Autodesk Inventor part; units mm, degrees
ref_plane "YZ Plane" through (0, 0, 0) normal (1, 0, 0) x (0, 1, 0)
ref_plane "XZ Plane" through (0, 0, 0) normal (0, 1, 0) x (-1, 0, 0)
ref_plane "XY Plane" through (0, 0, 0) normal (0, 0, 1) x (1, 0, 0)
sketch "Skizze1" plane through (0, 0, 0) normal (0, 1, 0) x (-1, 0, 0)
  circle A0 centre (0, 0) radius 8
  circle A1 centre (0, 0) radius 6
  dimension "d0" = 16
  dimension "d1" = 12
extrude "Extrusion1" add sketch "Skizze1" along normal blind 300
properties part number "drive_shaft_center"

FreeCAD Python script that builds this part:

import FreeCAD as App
import Part
import Sketcher

V = App.Vector
Q = App.Units.Quantity

doc = App.newDocument("Part")
body = doc.addObject("PartDesign::Body", "Body")

sketch1 = body.newObject("Sketcher::SketchObject", "Sketch")
sketch1.AttachmentSupport = (doc.getObject("XZ_Plane"), [""])
sketch1.MapMode = "FlatFace"
sketch1.addGeometry(Part.Circle(V(0, 0, 0), V(0, 0, 1), 8), False)
sketch1.addGeometry(Part.Circle(V(0, 0, 0), V(0, 0, 1), 6), False)
sketch1.addConstraint(Sketcher.Constraint("Coincident", 0, 3, -1, 1))
sketch1.addConstraint(Sketcher.Constraint("Coincident", 1, 3, -1, 1))
sketch1.addConstraint(Sketcher.Constraint("Diameter", 0, Q("16 mm")))
sketch1.addConstraint(Sketcher.Constraint("Diameter", 1, Q("12 mm")))
pad1 = body.newObject("PartDesign::Pad", "Pad")
pad1.Profile = sketch1
pad1.Length = 300
pad1.Reversed = True

doc.recompute()
